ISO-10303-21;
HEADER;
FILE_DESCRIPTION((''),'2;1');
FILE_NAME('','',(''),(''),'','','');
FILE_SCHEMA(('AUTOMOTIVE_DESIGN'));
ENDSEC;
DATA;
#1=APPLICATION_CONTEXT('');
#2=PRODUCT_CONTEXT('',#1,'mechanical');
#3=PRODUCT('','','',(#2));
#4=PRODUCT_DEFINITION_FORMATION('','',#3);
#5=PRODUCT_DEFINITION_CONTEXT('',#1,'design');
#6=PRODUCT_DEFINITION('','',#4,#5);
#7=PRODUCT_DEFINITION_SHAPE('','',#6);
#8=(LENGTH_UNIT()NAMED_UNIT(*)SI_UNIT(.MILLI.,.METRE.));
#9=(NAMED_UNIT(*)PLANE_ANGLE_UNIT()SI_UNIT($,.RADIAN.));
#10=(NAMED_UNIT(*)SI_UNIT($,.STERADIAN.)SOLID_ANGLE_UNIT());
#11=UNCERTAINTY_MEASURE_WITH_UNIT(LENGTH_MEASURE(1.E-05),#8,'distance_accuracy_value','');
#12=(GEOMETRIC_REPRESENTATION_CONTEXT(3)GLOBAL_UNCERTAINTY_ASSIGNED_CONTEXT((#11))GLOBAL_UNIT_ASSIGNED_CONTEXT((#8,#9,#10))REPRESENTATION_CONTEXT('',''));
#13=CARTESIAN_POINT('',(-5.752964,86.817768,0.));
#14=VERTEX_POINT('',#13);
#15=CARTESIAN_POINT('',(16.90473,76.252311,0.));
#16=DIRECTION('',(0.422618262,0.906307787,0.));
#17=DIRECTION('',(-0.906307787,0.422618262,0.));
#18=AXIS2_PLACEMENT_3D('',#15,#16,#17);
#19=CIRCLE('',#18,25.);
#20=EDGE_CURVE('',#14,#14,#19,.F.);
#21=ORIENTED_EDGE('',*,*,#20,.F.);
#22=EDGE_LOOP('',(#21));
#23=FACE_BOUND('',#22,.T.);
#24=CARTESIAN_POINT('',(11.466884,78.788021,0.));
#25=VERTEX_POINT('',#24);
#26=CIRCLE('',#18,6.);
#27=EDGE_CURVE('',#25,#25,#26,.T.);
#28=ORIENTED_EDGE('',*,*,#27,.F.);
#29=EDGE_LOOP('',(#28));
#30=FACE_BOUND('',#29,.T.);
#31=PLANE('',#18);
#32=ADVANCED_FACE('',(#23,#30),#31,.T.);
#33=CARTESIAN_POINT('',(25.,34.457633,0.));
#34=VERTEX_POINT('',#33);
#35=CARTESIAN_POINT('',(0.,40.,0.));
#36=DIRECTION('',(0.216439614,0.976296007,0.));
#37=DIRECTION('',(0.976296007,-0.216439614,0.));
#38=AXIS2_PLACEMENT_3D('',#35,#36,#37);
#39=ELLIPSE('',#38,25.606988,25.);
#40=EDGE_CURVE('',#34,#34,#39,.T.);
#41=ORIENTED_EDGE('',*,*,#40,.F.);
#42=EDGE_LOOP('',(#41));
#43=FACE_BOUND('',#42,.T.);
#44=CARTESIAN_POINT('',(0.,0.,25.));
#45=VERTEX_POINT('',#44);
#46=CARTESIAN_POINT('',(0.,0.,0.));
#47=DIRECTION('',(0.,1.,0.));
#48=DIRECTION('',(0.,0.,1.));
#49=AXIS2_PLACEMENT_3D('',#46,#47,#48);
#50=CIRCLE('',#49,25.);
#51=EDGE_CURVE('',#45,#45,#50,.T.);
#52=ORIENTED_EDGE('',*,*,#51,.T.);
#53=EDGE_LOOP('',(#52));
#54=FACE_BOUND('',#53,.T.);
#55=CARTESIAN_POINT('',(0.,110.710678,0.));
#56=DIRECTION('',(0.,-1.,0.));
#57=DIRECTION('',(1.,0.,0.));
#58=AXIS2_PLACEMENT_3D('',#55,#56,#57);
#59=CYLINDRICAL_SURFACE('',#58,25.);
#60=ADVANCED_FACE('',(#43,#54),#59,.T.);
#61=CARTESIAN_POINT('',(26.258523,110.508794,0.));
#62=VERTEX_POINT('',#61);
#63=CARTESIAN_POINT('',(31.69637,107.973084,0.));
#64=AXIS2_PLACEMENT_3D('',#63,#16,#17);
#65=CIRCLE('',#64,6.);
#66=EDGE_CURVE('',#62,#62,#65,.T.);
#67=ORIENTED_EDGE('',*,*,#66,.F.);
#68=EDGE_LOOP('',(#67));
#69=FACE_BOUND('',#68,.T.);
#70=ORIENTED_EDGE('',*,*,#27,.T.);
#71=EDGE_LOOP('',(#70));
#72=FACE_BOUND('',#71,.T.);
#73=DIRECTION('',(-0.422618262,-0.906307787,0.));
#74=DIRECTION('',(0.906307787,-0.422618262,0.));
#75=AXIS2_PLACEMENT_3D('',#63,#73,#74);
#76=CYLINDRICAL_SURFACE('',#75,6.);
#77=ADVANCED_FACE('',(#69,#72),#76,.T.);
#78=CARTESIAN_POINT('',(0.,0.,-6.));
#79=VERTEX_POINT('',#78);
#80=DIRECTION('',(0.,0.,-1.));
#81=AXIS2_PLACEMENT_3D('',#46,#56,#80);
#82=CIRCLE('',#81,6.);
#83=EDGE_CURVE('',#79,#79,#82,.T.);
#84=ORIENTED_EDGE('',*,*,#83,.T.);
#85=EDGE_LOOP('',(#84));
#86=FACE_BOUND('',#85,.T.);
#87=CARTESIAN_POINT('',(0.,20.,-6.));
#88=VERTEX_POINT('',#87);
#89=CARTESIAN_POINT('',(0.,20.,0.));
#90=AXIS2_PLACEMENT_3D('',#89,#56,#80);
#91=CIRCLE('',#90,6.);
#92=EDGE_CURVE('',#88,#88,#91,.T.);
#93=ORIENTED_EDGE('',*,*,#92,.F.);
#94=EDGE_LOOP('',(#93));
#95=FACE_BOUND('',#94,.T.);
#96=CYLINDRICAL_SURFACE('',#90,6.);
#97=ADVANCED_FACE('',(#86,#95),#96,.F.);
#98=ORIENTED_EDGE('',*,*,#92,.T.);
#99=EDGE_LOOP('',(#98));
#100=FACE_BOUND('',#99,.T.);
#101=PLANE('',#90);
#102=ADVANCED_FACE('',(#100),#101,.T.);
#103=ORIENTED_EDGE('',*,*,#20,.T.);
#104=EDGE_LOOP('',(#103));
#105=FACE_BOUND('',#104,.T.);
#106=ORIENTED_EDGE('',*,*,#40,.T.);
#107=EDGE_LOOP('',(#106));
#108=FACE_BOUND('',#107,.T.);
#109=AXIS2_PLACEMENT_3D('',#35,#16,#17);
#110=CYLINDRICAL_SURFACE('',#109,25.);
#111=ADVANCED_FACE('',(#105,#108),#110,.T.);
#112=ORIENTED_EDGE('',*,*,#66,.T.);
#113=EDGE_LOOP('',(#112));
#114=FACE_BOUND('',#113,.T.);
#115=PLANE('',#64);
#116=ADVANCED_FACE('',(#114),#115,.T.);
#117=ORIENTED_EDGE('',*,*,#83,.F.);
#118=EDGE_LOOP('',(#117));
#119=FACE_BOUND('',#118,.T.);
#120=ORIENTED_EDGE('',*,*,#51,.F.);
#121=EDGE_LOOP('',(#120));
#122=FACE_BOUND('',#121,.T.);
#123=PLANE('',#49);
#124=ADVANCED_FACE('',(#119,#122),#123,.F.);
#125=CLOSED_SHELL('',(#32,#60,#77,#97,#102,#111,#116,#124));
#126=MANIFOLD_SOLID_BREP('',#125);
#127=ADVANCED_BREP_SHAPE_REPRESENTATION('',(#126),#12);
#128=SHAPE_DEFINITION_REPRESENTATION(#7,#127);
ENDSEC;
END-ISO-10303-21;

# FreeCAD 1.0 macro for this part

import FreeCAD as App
import Part
import Sketcher
Q = App.Units.Quantity

doc = App.newDocument("Part")
body = doc.addObject("PartDesign::Body", "Body")

# Sketch on XZ plane
sketch1 = body.newObject("Sketcher::SketchObject", "Sketch")
sketch1.AttachmentSupport = (doc.getObject("XZ_Plane"), [""])
sketch1.MapMode = "FlatFace"
sketch1.addGeometry(Part.Circle(App.Vector(0, 0, 0), App.Vector(0, 0, 1), 25), False)
sketch1.addConstraint(Sketcher.Constraint("Coincident", 0, 3, -1, 1))
sketch1.addConstraint(Sketcher.Constraint("Diameter", 0, 50.0))

# Sketch on XY plane
sketch2 = body.newObject("Sketcher::SketchObject", "Sketch001")
sketch2.AttachmentSupport = (doc.getObject("XY_Plane"), [""])
sketch2.MapMode = "FlatFace"
sketch2.addGeometry(Part.LineSegment(App.Vector(17, 76, 0), App.Vector(0, 40, 0)), False)
sketch2.addGeometry(Part.LineSegment(App.Vector(0, 40, 0), App.Vector(0, 0, 0)), False)
sketch2.addConstraint(Sketcher.Constraint("Coincident", 0, 2, 1, 1))
sketch2.addConstraint(Sketcher.Constraint("Vertical", 1))
sketch2.addConstraint(Sketcher.Constraint("Coincident", 1, 2, -1, 1))
sketch2.addConstraint(Sketcher.Constraint("DistanceY", 1, 2, 1, 1, 40.0))
sketch2.addConstraint(Sketcher.Constraint("Angle", 0, Q("-115 deg")))
sketch2.addConstraint(Sketcher.Constraint("Distance", 0, 40.0))
doc.recompute()

additivepipe = body.newObject("PartDesign::AdditivePipe", "AdditivePipe")
additivepipe.Profile = sketch1
additivepipe.Spine = (sketch2, ["Edge1", "Edge2"])
additivepipe.Transition = "Right corner"

# Sketch on an angled plane
sketch3 = body.newObject("Sketcher::SketchObject", "Sketch002")
sketch3.Placement = App.Placement(App.Vector(32.225619, 69.108064, 0), App.Rotation(App.Vector(0.906307787, -0.422618262, 0), App.Vector(0, 0, -1), App.Vector(0.422618262, 0.906307787, 0), "ZXY"))
sketch3.addGeometry(Part.Circle(App.Vector(-17, 0, 0), App.Vector(0, 0, 1), 6), False)
sketch3.addConstraint(Sketcher.Constraint("PointOnObject", 0, 3, -1))
sketch3.addConstraint(Sketcher.Constraint("Diameter", 0, 12.0))
sketch3.addConstraint(Sketcher.Constraint("DistanceX", 0, 3, -1, 1, 16.90473))
pad1 = body.newObject("PartDesign::Pad", "Pad")
pad1.Profile = sketch3
pad1.Length = 35

# Sketch on XZ plane
sketch4 = body.newObject("Sketcher::SketchObject", "Sketch003")
sketch4.AttachmentSupport = (doc.getObject("XZ_Plane"), [""])
sketch4.MapMode = "FlatFace"
sketch4.addGeometry(Part.Circle(App.Vector(0, 0, 0), App.Vector(0, 0, 1), 6), False)
sketch4.addConstraint(Sketcher.Constraint("Coincident", 0, 3, -1, 1))
sketch4.addConstraint(Sketcher.Constraint("Diameter", 0, 12.0))
pocket1 = body.newObject("PartDesign::Pocket", "Pocket")
pocket1.Profile = sketch4
pocket1.Length = 20

doc.recompute()
